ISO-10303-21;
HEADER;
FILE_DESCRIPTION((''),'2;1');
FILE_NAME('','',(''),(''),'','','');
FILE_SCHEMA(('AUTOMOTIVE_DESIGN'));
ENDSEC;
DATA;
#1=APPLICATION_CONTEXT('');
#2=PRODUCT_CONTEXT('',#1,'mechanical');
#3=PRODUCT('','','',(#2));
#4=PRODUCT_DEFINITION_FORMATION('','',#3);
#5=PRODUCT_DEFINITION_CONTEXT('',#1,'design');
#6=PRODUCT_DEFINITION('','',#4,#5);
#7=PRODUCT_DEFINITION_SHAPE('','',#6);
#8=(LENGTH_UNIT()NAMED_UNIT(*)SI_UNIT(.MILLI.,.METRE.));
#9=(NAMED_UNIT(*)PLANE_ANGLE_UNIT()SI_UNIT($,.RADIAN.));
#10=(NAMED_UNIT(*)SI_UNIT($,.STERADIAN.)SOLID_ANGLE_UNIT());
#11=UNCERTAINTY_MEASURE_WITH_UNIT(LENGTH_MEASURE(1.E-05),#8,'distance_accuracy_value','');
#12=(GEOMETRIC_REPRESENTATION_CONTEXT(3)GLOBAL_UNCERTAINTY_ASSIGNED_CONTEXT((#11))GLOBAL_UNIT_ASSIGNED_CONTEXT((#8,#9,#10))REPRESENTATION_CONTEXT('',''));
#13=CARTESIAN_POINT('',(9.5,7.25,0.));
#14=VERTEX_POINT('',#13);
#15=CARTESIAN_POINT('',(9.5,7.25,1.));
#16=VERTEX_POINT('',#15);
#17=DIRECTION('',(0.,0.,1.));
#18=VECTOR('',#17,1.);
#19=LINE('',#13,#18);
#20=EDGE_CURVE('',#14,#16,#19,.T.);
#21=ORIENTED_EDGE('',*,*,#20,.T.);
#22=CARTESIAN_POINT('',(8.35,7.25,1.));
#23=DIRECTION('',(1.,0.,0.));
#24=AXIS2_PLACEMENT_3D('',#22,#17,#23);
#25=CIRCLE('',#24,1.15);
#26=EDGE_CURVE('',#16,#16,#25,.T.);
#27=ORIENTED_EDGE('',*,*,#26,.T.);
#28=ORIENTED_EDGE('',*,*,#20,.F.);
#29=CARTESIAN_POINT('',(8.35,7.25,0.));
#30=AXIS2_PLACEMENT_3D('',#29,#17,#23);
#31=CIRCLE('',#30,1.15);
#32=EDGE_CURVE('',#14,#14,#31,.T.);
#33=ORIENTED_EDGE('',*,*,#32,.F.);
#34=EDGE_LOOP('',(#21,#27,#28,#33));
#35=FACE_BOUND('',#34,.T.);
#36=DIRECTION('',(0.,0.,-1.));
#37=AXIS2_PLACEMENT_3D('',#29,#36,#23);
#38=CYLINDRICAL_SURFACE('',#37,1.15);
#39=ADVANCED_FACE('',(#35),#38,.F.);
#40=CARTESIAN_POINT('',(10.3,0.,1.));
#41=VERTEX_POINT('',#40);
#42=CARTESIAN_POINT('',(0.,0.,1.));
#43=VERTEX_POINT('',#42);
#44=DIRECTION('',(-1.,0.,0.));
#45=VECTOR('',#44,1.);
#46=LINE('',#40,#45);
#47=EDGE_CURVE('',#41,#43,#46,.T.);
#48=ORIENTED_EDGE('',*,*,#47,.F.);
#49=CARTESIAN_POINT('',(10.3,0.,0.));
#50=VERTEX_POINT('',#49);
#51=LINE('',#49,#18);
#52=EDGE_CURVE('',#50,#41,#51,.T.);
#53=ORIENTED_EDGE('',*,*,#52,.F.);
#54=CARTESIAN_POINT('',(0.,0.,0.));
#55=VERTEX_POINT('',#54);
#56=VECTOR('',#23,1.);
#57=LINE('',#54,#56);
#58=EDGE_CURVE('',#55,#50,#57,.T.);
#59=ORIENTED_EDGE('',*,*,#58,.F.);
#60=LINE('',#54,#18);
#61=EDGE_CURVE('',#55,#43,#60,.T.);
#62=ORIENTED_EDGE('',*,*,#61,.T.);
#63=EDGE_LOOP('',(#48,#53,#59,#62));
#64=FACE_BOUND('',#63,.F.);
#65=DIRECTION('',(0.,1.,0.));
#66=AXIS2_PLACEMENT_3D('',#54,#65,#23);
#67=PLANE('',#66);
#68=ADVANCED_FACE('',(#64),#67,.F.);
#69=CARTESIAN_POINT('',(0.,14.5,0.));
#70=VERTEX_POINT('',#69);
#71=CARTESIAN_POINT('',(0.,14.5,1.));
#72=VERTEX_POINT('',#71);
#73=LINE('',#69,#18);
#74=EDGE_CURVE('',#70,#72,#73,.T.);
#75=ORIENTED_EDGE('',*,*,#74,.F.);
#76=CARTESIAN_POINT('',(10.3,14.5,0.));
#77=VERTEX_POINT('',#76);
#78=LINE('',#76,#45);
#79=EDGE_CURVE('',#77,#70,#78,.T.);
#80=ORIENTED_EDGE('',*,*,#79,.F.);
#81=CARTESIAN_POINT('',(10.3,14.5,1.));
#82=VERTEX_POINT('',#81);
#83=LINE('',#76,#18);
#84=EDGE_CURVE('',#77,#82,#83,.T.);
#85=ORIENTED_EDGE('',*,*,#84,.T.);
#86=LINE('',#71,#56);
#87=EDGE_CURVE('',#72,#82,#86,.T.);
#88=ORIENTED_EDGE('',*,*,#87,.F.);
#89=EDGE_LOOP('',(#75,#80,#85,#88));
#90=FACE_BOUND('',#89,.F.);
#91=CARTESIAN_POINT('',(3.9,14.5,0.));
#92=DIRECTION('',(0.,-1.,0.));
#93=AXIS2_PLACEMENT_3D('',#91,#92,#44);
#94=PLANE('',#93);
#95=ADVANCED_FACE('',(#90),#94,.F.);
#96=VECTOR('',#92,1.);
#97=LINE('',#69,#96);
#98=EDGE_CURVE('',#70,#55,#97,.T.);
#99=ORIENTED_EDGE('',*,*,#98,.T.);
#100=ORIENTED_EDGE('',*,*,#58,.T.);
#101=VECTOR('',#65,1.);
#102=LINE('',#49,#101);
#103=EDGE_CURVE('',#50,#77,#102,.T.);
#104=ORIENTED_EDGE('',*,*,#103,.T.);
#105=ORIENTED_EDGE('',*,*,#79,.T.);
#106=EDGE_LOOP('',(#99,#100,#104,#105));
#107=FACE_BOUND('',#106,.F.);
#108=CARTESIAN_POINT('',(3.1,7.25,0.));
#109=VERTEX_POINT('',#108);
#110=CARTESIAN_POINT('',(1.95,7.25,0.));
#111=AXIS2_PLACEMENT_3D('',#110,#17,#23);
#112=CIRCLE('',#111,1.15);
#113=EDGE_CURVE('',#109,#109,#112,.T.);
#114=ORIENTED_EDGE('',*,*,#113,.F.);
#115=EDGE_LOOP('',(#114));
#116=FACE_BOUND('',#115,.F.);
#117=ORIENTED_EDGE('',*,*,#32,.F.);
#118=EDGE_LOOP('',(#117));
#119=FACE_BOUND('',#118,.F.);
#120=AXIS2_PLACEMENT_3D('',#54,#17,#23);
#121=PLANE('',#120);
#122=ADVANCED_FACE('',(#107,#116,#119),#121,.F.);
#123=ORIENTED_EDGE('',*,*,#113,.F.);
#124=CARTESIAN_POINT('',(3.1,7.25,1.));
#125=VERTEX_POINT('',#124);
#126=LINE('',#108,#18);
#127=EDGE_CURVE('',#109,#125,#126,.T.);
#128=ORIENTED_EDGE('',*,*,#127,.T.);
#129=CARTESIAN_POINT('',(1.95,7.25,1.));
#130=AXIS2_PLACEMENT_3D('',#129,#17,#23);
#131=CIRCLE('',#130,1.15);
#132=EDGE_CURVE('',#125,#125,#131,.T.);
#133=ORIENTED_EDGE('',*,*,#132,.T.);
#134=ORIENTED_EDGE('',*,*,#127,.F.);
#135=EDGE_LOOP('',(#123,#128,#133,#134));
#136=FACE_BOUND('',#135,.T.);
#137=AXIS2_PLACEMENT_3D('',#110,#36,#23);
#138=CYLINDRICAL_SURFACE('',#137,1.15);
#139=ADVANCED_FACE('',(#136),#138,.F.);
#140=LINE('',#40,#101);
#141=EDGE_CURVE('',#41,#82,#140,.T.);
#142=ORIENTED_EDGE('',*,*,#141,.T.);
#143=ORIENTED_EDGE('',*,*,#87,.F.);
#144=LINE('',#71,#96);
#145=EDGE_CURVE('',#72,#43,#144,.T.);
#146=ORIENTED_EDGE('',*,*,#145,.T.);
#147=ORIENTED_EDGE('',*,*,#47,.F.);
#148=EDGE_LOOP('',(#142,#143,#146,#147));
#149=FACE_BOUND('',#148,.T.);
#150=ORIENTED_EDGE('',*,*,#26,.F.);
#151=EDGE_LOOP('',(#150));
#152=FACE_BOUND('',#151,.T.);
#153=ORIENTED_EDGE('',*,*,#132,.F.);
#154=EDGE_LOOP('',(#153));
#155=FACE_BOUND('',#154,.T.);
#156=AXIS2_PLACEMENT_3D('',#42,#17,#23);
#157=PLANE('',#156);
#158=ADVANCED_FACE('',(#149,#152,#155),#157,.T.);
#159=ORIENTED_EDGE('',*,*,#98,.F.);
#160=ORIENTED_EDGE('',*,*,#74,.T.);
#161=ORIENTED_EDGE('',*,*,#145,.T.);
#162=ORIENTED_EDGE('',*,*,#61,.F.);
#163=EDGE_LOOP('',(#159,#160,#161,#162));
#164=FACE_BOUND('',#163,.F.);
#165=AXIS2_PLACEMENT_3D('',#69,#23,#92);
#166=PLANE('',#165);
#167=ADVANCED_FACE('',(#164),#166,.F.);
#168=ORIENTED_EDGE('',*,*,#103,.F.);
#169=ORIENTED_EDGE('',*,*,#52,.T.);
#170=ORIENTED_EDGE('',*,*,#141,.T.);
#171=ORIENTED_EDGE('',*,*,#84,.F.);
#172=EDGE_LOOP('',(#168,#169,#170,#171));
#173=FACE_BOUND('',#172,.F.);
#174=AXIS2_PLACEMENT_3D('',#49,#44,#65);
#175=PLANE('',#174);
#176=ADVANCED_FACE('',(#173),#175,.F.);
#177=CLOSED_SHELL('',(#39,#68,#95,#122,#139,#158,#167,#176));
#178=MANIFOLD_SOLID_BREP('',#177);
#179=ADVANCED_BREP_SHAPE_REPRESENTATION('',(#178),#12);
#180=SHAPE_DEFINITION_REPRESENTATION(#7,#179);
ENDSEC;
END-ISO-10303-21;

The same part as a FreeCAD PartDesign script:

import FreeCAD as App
import Part
import Sketcher

V = App.Vector

doc = App.newDocument("Part")
params = doc.addObject("Spreadsheet::Sheet", "Params")
for row, (alias, value) in enumerate([
    ("sketch1_diameter", "2.3 mm"),
    ("sketch1_width", "10.3 mm"),
    ("sketch1_height", "14.5 mm"),
    ("pad1_length", "1 mm"),
], start=1):
    params.set(f"A{row}", alias)
    params.set(f"B{row}", "=" + value)
    params.setAlias(f"B{row}", alias)

body = doc.addObject("PartDesign::Body", "Body")

sketch1 = doc.addObject("Sketcher::SketchObject", "Sketch")
body.addObject(sketch1)
sketch1.AttachmentSupport = (doc.XY_Plane, [""])
sketch1.MapMode = "FlatFace"
sketch1.addGeometry(Part.LineSegment(V(0, 14.5, 0), V(0, 0, 0)), False)
sketch1.addGeometry(Part.LineSegment(V(0, 0, 0), V(10.3, 0, 0)), False)
sketch1.addGeometry(Part.LineSegment(V(10.3, 0, 0), V(10.3, 14.5, 0)), False)
sketch1.addGeometry(Part.LineSegment(V(10.3, 14.5, 0), V(0, 14.5, 0)), False)
sketch1.addGeometry(Part.Circle(V(1.95, 7.25, 0), V(0, 0, 1), 1.15), False)
sketch1.addGeometry(Part.Circle(V(8.35, 7.25, 0), V(0, 0, 1), 1.15), False)
sketch1.addConstraint(Sketcher.Constraint("Coincident", 0, 2, 1, 1))
sketch1.addConstraint(Sketcher.Constraint("Coincident", 1, 2, 2, 1))
sketch1.addConstraint(Sketcher.Constraint("Coincident", 2, 2, 3, 1))
sketch1.addConstraint(Sketcher.Constraint("Coincident", 3, 2, 0, 1))
sketch1.addConstraint(Sketcher.Constraint("Vertical", 0))
sketch1.addConstraint(Sketcher.Constraint("Horizontal", 1))
sketch1.addConstraint(Sketcher.Constraint("Vertical", 2))
sketch1.addConstraint(Sketcher.Constraint("Horizontal", 3))
sketch1.addConstraint(Sketcher.Constraint("Coincident", 0, 2, -1, 1))
sketch1.addConstraint(Sketcher.Constraint("Equal", 4, 5))
sketch1.addConstraint(Sketcher.Constraint("Horizontal", 4, 3, 5, 3))
sketch1.addConstraint(Sketcher.Constraint("Diameter", 4, 2.3))
sketch1.addConstraint(Sketcher.Constraint("DistanceX", 1, 1, 1, 2, 10.3))
sketch1.addConstraint(Sketcher.Constraint("DistanceY", 0, 2, 0, 1, 14.5))
sketch1.addConstraint(Sketcher.Constraint("DistanceX", -1, 1, 4, 3, 1.95))
sketch1.addConstraint(Sketcher.Constraint("DistanceY", -1, 1, 4, 3, 7.25))
sketch1.addConstraint(Sketcher.Constraint("DistanceX", 5, 3, 1, 2, 1.95))
sketch1.setExpression("Constraints[11]", "Params.sketch1_diameter")
sketch1.setExpression("Constraints[12]", "Params.sketch1_width")
sketch1.setExpression("Constraints[13]", "Params.sketch1_height")
pad1 = doc.addObject("PartDesign::Pad", "Pad")
body.addObject(pad1)
pad1.Profile = sketch1
pad1.setExpression("Length", "Params.pad1_length")

doc.recompute()
